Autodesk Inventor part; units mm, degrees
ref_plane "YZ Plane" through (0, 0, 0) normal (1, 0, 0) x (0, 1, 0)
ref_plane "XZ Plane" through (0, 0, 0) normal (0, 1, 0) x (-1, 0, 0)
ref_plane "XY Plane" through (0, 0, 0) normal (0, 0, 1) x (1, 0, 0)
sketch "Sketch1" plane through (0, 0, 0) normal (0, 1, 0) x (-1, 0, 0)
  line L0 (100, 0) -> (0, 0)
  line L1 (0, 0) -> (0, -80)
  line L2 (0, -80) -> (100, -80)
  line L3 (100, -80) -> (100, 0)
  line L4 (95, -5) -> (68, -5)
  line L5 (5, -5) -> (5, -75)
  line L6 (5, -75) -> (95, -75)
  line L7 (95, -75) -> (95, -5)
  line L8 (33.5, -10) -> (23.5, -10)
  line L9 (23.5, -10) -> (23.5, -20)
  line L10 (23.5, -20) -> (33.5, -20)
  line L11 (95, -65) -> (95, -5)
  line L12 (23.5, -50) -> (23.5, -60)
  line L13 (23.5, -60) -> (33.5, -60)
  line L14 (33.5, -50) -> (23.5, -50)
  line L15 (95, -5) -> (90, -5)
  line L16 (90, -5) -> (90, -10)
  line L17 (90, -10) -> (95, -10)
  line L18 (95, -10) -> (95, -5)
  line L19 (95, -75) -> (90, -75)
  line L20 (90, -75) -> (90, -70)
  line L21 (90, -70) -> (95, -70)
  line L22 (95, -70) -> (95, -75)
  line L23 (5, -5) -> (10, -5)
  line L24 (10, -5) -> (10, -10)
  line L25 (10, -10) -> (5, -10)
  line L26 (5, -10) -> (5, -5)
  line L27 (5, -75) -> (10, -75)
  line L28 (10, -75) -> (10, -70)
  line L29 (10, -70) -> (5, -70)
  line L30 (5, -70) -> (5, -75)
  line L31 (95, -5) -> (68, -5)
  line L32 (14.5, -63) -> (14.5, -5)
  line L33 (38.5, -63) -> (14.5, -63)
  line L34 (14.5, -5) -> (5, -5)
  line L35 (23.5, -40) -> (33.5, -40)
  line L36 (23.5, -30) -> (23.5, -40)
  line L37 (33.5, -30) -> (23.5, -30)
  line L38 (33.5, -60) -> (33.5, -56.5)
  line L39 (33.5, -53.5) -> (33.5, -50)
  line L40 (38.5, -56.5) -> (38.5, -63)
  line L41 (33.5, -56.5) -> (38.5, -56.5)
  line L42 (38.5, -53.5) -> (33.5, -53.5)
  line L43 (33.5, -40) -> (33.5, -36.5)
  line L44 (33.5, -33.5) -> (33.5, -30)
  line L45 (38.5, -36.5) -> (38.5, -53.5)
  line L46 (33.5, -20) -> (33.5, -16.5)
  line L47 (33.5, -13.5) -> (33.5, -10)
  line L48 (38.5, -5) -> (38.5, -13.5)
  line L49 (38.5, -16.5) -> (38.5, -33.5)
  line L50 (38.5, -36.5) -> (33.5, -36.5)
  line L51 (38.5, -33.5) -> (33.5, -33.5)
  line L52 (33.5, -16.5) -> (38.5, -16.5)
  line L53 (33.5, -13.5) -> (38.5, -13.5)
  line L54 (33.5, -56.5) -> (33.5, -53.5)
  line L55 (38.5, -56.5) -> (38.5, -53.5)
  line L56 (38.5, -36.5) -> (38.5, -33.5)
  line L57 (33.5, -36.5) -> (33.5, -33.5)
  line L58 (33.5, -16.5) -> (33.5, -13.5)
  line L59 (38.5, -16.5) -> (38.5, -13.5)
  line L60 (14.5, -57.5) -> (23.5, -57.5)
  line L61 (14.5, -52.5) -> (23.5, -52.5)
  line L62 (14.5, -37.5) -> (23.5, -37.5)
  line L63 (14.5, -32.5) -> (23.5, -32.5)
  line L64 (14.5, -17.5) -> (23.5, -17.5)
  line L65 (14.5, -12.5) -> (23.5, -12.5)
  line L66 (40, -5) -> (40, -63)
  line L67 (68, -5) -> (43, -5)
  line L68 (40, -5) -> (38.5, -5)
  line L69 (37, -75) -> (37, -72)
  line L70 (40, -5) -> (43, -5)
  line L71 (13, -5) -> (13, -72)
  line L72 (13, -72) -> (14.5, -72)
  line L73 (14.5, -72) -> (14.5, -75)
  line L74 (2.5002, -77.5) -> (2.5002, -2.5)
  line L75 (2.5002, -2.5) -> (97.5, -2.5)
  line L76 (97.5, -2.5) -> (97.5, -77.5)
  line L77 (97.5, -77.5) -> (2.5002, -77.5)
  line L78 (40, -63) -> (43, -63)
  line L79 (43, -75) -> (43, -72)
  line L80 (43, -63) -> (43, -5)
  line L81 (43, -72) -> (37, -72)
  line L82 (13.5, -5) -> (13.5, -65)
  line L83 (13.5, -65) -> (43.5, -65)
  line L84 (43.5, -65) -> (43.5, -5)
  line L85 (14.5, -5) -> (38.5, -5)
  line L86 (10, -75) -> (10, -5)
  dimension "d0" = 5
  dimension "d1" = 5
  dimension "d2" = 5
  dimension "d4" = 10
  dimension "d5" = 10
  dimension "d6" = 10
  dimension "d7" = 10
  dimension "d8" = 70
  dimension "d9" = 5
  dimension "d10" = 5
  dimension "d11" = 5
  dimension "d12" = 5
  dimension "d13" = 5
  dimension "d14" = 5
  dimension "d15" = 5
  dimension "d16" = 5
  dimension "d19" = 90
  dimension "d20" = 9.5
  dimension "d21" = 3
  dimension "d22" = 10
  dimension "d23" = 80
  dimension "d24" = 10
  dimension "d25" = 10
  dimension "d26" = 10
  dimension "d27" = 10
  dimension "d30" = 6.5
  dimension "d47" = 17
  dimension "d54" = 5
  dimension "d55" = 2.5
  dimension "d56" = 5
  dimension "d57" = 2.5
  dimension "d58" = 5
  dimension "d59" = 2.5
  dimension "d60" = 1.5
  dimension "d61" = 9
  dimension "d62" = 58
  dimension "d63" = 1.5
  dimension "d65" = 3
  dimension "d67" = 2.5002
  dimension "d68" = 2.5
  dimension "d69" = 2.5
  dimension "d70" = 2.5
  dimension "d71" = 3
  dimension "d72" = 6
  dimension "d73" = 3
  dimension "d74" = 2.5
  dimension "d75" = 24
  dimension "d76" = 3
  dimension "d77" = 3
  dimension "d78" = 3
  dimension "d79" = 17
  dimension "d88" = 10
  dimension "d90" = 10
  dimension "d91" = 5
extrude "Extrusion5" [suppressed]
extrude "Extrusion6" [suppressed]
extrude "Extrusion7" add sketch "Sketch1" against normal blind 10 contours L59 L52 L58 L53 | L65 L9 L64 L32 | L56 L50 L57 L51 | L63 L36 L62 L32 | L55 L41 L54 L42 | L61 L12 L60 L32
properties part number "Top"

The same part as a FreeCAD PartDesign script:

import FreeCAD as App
import Part
import Sketcher

V = App.Vector
Q = App.Units.Quantity

doc = App.newDocument("Part")
body = doc.addObject("PartDesign::Body", "Body")
body.AllowCompound = True

# Sketch on XZ plane
sketch1 = doc.addObject("Sketcher::SketchObject", "Sketch")
body.addObject(sketch1)
sketch1.AttachmentSupport = (doc.XZ_Plane, [""])
sketch1.MapMode = "FlatFace"
sketch1.addGeometry(Part.LineSegment(V(-38.5, -16.5, 0), V(-38.5, -13.5, 0)), False)
sketch1.addGeometry(Part.LineSegment(V(-38.5, -13.5, 0), V(-33.5, -13.5, 0)), False)
sketch1.addGeometry(Part.LineSegment(V(-33.5, -13.5, 0), V(-33.5, -16.5, 0)), False)
sketch1.addGeometry(Part.LineSegment(V(-33.5, -16.5, 0), V(-38.5, -16.5, 0)), False)
sketch1.addGeometry(Part.LineSegment(V(-23.5, -12.5, 0), V(-14.5, -12.5, 0)), False)
sketch1.addGeometry(Part.LineSegment(V(-14.5, -12.5, 0), V(-14.5, -17.5, 0)), False)
sketch1.addGeometry(Part.LineSegment(V(-14.5, -17.5, 0), V(-23.5, -17.5, 0)), False)
sketch1.addGeometry(Part.LineSegment(V(-23.5, -17.5, 0), V(-23.5, -12.5, 0)), False)
sketch1.addGeometry(Part.LineSegment(V(-38.5, -36.5, 0), V(-38.5, -33.5, 0)), False)
sketch1.addGeometry(Part.LineSegment(V(-38.5, -33.5, 0), V(-33.5, -33.5, 0)), False)
sketch1.addGeometry(Part.LineSegment(V(-33.5, -33.5, 0), V(-33.5, -36.5, 0)), False)
sketch1.addGeometry(Part.LineSegment(V(-33.5, -36.5, 0), V(-38.5, -36.5, 0)), False)
sketch1.addGeometry(Part.LineSegment(V(-23.5, -32.5, 0), V(-14.5, -32.5, 0)), False)
sketch1.addGeometry(Part.LineSegment(V(-14.5, -32.5, 0), V(-14.5, -37.5, 0)), False)
sketch1.addGeometry(Part.LineSegment(V(-14.5, -37.5, 0), V(-23.5, -37.5, 0)), False)
sketch1.addGeometry(Part.LineSegment(V(-23.5, -37.5, 0), V(-23.5, -32.5, 0)), False)
sketch1.addGeometry(Part.LineSegment(V(-38.5, -56.5, 0), V(-38.5, -53.5, 0)), False)
sketch1.addGeometry(Part.LineSegment(V(-38.5, -53.5, 0), V(-33.5, -53.5, 0)), False)
sketch1.addGeometry(Part.LineSegment(V(-33.5, -53.5, 0), V(-33.5, -56.5, 0)), False)
sketch1.addGeometry(Part.LineSegment(V(-33.5, -56.5, 0), V(-38.5, -56.5, 0)), False)
sketch1.addGeometry(Part.LineSegment(V(-23.5, -52.5, 0), V(-14.5, -52.5, 0)), False)
sketch1.addGeometry(Part.LineSegment(V(-14.5, -52.5, 0), V(-14.5, -57.5, 0)), False)
sketch1.addGeometry(Part.LineSegment(V(-14.5, -57.5, 0), V(-23.5, -57.5, 0)), False)
sketch1.addGeometry(Part.LineSegment(V(-23.5, -57.5, 0), V(-23.5, -52.5, 0)), False)
sketch1.addConstraint(Sketcher.Constraint("Coincident", 0, 2, 1, 1))
sketch1.addConstraint(Sketcher.Constraint("Coincident", 1, 2, 2, 1))
sketch1.addConstraint(Sketcher.Constraint("Coincident", 2, 2, 3, 1))
sketch1.addConstraint(Sketcher.Constraint("Coincident", 3, 2, 0, 1))
sketch1.addConstraint(Sketcher.Constraint("Coincident", 4, 2, 5, 1))
sketch1.addConstraint(Sketcher.Constraint("Coincident", 5, 2, 6, 1))
sketch1.addConstraint(Sketcher.Constraint("Coincident", 6, 2, 7, 1))
sketch1.addConstraint(Sketcher.Constraint("Coincident", 7, 2, 4, 1))
sketch1.addConstraint(Sketcher.Constraint("Coincident", 8, 2, 9, 1))
sketch1.addConstraint(Sketcher.Constraint("Coincident", 9, 2, 10, 1))
sketch1.addConstraint(Sketcher.Constraint("Coincident", 10, 2, 11, 1))
sketch1.addConstraint(Sketcher.Constraint("Coincident", 11, 2, 8, 1))
sketch1.addConstraint(Sketcher.Constraint("Coincident", 12, 2, 13, 1))
sketch1.addConstraint(Sketcher.Constraint("Coincident", 13, 2, 14, 1))
sketch1.addConstraint(Sketcher.Constraint("Coincident", 14, 2, 15, 1))
sketch1.addConstraint(Sketcher.Constraint("Coincident", 15, 2, 12, 1))
sketch1.addConstraint(Sketcher.Constraint("Coincident", 16, 2, 17, 1))
sketch1.addConstraint(Sketcher.Constraint("Coincident", 17, 2, 18, 1))
sketch1.addConstraint(Sketcher.Constraint("Coincident", 18, 2, 19, 1))
sketch1.addConstraint(Sketcher.Constraint("Coincident", 19, 2, 16, 1))
sketch1.addConstraint(Sketcher.Constraint("Coincident", 20, 2, 21, 1))
sketch1.addConstraint(Sketcher.Constraint("Coincident", 21, 2, 22, 1))
sketch1.addConstraint(Sketcher.Constraint("Coincident", 22, 2, 23, 1))
sketch1.addConstraint(Sketcher.Constraint("Coincident", 23, 2, 20, 1))
sketch1.addConstraint(Sketcher.Constraint("Vertical", 0))
sketch1.addConstraint(Sketcher.Constraint("Horizontal", 1))
sketch1.addConstraint(Sketcher.Constraint("Vertical", 2))
sketch1.addConstraint(Sketcher.Constraint("Horizontal", 3))
sketch1.addConstraint(Sketcher.Constraint("Horizontal", 4))
sketch1.addConstraint(Sketcher.Constraint("Vertical", 5))
sketch1.addConstraint(Sketcher.Constraint("Horizontal", 6))
sketch1.addConstraint(Sketcher.Constraint("Vertical", 7))
sketch1.addConstraint(Sketcher.Constraint("Vertical", 8))
sketch1.addConstraint(Sketcher.Constraint("Horizontal", 9))
sketch1.addConstraint(Sketcher.Constraint("Vertical", 10))
sketch1.addConstraint(Sketcher.Constraint("Horizontal", 11))
sketch1.addConstraint(Sketcher.Constraint("Horizontal", 12))
sketch1.addConstraint(Sketcher.Constraint("Vertical", 13))
sketch1.addConstraint(Sketcher.Constraint("Horizontal", 14))
sketch1.addConstraint(Sketcher.Constraint("Vertical", 15))
sketch1.addConstraint(Sketcher.Constraint("Vertical", 16))
sketch1.addConstraint(Sketcher.Constraint("Horizontal", 17))
sketch1.addConstraint(Sketcher.Constraint("Vertical", 18))
sketch1.addConstraint(Sketcher.Constraint("Horizontal", 19))
sketch1.addConstraint(Sketcher.Constraint("Horizontal", 20))
sketch1.addConstraint(Sketcher.Constraint("Vertical", 21))
sketch1.addConstraint(Sketcher.Constraint("Horizontal", 22))
sketch1.addConstraint(Sketcher.Constraint("Vertical", 23))
sketch1.addConstraint(Sketcher.Constraint("Vertical", 3, 2, 8, 2))
sketch1.addConstraint(Sketcher.Constraint("Vertical", 2, 2, 9, 2))
sketch1.addConstraint(Sketcher.Constraint("Vertical", 5, 2, 12, 2))
sketch1.addConstraint(Sketcher.Constraint("Vertical", 7, 2, 14, 2))
sketch1.addConstraint(Sketcher.Constraint("Vertical", 11, 2, 16, 2))
sketch1.addConstraint(Sketcher.Constraint("Vertical", 10, 2, 17, 2))
sketch1.addConstraint(Sketcher.Constraint("Vertical", 13, 2, 20, 2))
sketch1.addConstraint(Sketcher.Constraint("Vertical", 15, 2, 22, 2))
sketch1.addConstraint(Sketcher.Constraint("Equal", 19, 5))
sketch1.addConstraint(Sketcher.Constraint("Equal", 2, 8))
sketch1.addConstraint(Sketcher.Constraint("Equal", 7, 13))
sketch1.addConstraint(Sketcher.Constraint("Equal", 10, 16))
sketch1.addConstraint(Sketcher.Constraint("Equal", 15, 21))
sketch1.addConstraint(Sketcher.Constraint("DistanceX", 1, 1, 1, 2, Q("5 mm")))
sketch1.addConstraint(Sketcher.Constraint("DistanceX", 4, 1, 4, 2, Q("9 mm")))
sketch1.addConstraint(Sketcher.Constraint("DistanceY", 0, 1, 0, 2, Q("3 mm")))
sketch1.addConstraint(Sketcher.Constraint("DistanceX", 0, 2, 4, 2, Q("24 mm")))
sketch1.addConstraint(Sketcher.Constraint("DistanceY", 8, 2, 3, 2, Q("17 mm")))
sketch1.addConstraint(Sketcher.Constraint("DistanceY", 16, 2, 11, 2, Q("17 mm")))
sketch1.addConstraint(Sketcher.Constraint("DistanceY", 1, 2, 4, 2, Q("1 mm")))
sketch1.addConstraint(Sketcher.Constraint("DistanceY", 12, 2, 5, 2, Q("15 mm")))
sketch1.addConstraint(Sketcher.Constraint("DistanceY", 20, 2, 13, 2, Q("15 mm")))
sketch1.addConstraint(Sketcher.Constraint("DistanceX", 0, 2, -1, 1, Q("38.5 mm")))
sketch1.addConstraint(Sketcher.Constraint("DistanceY", 0, 2, -1, 1, Q("13.5 mm")))
pad1 = doc.addObject("PartDesign::Pad", "Pad")
body.addObject(pad1)
pad1.Profile = sketch1
pad1.Length = 10

doc.recompute()
